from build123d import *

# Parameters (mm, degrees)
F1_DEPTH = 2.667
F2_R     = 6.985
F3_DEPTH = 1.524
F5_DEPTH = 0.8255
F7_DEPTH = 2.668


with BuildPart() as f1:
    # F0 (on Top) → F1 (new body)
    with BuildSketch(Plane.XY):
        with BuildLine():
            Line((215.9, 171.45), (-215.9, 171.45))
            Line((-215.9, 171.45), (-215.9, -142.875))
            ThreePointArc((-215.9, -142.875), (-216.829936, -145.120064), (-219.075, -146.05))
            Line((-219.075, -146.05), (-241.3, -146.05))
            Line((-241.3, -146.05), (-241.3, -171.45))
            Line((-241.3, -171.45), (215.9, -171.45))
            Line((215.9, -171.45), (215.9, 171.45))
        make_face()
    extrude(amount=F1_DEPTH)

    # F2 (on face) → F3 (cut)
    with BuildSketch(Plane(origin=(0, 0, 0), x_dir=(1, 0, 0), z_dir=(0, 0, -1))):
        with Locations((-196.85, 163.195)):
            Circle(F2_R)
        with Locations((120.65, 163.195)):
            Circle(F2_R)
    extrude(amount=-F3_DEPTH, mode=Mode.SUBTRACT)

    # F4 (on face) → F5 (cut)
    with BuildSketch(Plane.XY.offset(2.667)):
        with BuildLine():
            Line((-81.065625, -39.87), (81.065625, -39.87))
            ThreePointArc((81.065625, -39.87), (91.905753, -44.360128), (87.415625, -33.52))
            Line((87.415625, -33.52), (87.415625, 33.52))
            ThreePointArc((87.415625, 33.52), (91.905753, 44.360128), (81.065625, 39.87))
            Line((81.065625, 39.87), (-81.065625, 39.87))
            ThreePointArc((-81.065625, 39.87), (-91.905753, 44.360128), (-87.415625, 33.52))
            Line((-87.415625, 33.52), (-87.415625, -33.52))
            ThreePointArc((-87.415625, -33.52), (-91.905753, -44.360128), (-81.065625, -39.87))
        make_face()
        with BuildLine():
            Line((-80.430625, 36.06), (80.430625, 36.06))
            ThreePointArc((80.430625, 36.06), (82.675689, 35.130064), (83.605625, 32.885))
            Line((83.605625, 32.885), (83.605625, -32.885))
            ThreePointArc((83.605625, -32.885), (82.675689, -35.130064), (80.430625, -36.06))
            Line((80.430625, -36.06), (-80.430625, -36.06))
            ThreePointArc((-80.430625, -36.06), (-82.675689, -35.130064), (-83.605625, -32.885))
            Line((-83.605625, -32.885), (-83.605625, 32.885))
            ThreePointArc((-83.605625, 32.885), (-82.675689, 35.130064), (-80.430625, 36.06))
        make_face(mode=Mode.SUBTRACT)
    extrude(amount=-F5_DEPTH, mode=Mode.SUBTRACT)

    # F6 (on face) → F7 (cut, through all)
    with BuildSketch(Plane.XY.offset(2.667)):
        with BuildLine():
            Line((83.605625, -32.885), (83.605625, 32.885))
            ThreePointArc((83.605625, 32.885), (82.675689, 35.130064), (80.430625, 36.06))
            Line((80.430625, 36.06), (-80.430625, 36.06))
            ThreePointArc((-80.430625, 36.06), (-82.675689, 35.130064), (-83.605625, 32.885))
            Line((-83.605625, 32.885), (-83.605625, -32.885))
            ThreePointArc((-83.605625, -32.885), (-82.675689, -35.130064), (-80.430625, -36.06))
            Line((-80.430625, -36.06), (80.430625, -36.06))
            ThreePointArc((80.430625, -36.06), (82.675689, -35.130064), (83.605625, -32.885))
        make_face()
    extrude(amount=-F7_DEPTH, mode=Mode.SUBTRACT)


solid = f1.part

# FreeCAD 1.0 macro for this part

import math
import FreeCAD as App
import Part
import Sketcher

V = App.Vector
Q = App.Units.Quantity

doc = App.newDocument("Part")
params = doc.addObject("Spreadsheet::Sheet", "Params")
for row, (alias, value) in enumerate([
    ("sketch1_width", "17 in"),
    ("sketch1_width2", "18 in"),
    ("sketch1_height", "1 in"),
    ("sketch1_height2", "13.5 in"),
    ("sketch1_radius", "0.125 in"),
    ("pad1_length", "0.105 in"),
    ("sketch2_diameter", "0.55 in"),
    ("pocket1_length", "0.06 in"),
    ("sketch3_radius", "0.25 in"),
    ("sketch3_radius2", "0.125 in"),
    ("pocket2_length", "0.0325 in"),
    ("sketch4_radius", "0.125 in"),
], start=1):
    params.set(f"A{row}", alias)
    params.set(f"B{row}", "=" + value)
    params.setAlias(f"B{row}", alias)

body = doc.addObject("PartDesign::Body", "Body")

sketch1 = body.newObject("Sketcher::SketchObject", "Sketch")
sketch1.AttachmentSupport = (doc.getObject("XY_Plane"), [""])
sketch1.MapMode = "FlatFace"
sketch1.addGeometry(Part.LineSegment(V(215.9, 171.4, 0), V(-215.9, 171.4, 0)), False)
sketch1.addGeometry(Part.LineSegment(V(-215.9, 171.4, 0), V(-215.9, -142.9, 0)), False)
sketch1.addGeometry(Part.ArcOfCircle(Part.Circle(V(-219.1, -142.9, 0), V(0, 0, 1), 3.2), math.radians(-90), math.radians(0)), False)
sketch1.addGeometry(Part.LineSegment(V(-219.1, -146.1, 0), V(-241.3, -146.1, 0)), False)
sketch1.addGeometry(Part.LineSegment(V(-241.3, -146.1, 0), V(-241.3, -171.4, 0)), False)
sketch1.addGeometry(Part.LineSegment(V(-241.3, -171.4, 0), V(215.9, -171.4, 0)), False)
sketch1.addGeometry(Part.LineSegment(V(215.9, -171.4, 0), V(215.9, 171.4, 0)), False)
sketch1.addConstraint(Sketcher.Constraint("Coincident", 0, 2, 1, 1))
sketch1.addConstraint(Sketcher.Constraint("Tangent", 1, 2, 2, 2))
sketch1.addConstraint(Sketcher.Constraint("Tangent", 2, 1, 3, 1))
sketch1.addConstraint(Sketcher.Constraint("Coincident", 3, 2, 4, 1))
sketch1.addConstraint(Sketcher.Constraint("Coincident", 4, 2, 5, 1))
sketch1.addConstraint(Sketcher.Constraint("Coincident", 5, 2, 6, 1))
sketch1.addConstraint(Sketcher.Constraint("Coincident", 6, 2, 0, 1))
sketch1.addConstraint(Sketcher.Constraint("Horizontal", 0))
sketch1.addConstraint(Sketcher.Constraint("Vertical", 1))
sketch1.addConstraint(Sketcher.Constraint("Horizontal", 3))
sketch1.addConstraint(Sketcher.Constraint("Vertical", 4))
sketch1.addConstraint(Sketcher.Constraint("Horizontal", 5))
sketch1.addConstraint(Sketcher.Constraint("Vertical", 6))
sketch1.addConstraint(Sketcher.Constraint("Symmetric", 0, 2, 5, 2, -1, 1))
sketch1.addConstraint(Sketcher.Constraint("DistanceX", 0, 2, 0, 1, Q("17 in")))
sketch1.addConstraint(Sketcher.Constraint("DistanceX", 5, 1, 5, 2, Q("18 in")))
sketch1.addConstraint(Sketcher.Constraint("DistanceY", 4, 2, 4, 1, Q("1 in")))
sketch1.addConstraint(Sketcher.Constraint("DistanceY", 6, 1, 6, 2, Q("13.5 in")))
sketch1.addConstraint(Sketcher.Constraint("Radius", 2, Q("0.125 in")))
sketch1.setExpression("Constraints[14]", "Params.sketch1_width")
sketch1.setExpression("Constraints[15]", "Params.sketch1_width2")
sketch1.setExpression("Constraints[16]", "Params.sketch1_height")
sketch1.setExpression("Constraints[17]", "Params.sketch1_height2")
sketch1.setExpression("Constraints[18]", "Params.sketch1_radius")
pad1 = body.newObject("PartDesign::Pad", "Pad")
pad1.Profile = sketch1
pad1.setExpression("Length", "Params.pad1_length")

sketch2 = body.newObject("Sketcher::SketchObject", "Sketch001")
sketch2.AttachmentSupport = (doc.getObject("XY_Plane"), [""])
sketch2.MapMode = "FlatFace"
sketch2.addGeometry(Part.Circle(V(-197, -163, 0), V(0, 0, 1), 7), False)
sketch2.addGeometry(Part.Circle(V(121, -163, 0), V(0, 0, 1), 7), False)
sketch2.addConstraint(Sketcher.Constraint("Equal", 0, 1))
sketch2.addConstraint(Sketcher.Constraint("Horizontal", 0, 3, 1, 3))
sketch2.addConstraint(Sketcher.Constraint("Diameter", 0, Q("0.55 in")))
sketch2.addConstraint(Sketcher.Constraint("DistanceX", 0, 3, 1, 3, Q("12.5 in")))
sketch2.addConstraint(Sketcher.Constraint("DistanceX", 0, 3, -1, 1, Q("7.75 in")))
sketch2.addConstraint(Sketcher.Constraint("DistanceY", 0, 3, -1, 1, Q("6.425 in")))
sketch2.setExpression("Constraints[2]", "Params.sketch2_diameter")
pocket1 = body.newObject("PartDesign::Pocket", "Pocket")
pocket1.Profile = sketch2
pocket1.setExpression("Length", "Params.pocket1_length")
pocket1.Reversed = True

sketch3 = body.newObject("Sketcher::SketchObject", "Sketch002")
sketch3.AttachmentSupport = (doc.getObject("XY_Plane"), [""])
sketch3.MapMode = "FlatFace"
sketch3.AttachmentOffset = App.Placement(V(0, 0, 0.105 * 25.4), App.Rotation())
sketch3.addGeometry(Part.LineSegment(V(-81.1, -39.9, 0), V(81.1, -39.9, 0)), False)
sketch3.addGeometry(Part.ArcOfCircle(Part.Circle(V(87.4, -39.9, 0), V(0, 0, 1), 6.3), math.radians(-180), math.radians(90)), False)
sketch3.addGeometry(Part.LineSegment(V(87.4, -33.5, 0), V(87.4, 33.5, 0)), False)
sketch3.addGeometry(Part.ArcOfCircle(Part.Circle(V(87.4, 39.9, 0), V(0, 0, 1), 6.3), math.radians(-90), math.radians(180)), False)
sketch3.addGeometry(Part.LineSegment(V(81.1, 39.9, 0), V(-81.1, 39.9, 0)), False)
sketch3.addGeometry(Part.ArcOfCircle(Part.Circle(V(-87.4, 39.9, 0), V(0, 0, 1), 6.3), math.radians(0), math.radians(270)), False)
sketch3.addGeometry(Part.LineSegment(V(-87.4, 33.5, 0), V(-87.4, -33.5, 0)), False)
sketch3.addGeometry(Part.ArcOfCircle(Part.Circle(V(-87.4, -39.9, 0), V(0, 0, 1), 6.3), math.radians(90), math.radians(360)), False)
sketch3.addGeometry(Part.ArcOfCircle(Part.Circle(V(-80.4, 32.9, 0), V(0, 0, 1), 3.2), math.radians(90), math.radians(180)), False)
sketch3.addGeometry(Part.LineSegment(V(-80.4, 36.1, 0), V(80.4, 36.1, 0)), False)
sketch3.addGeometry(Part.ArcOfCircle(Part.Circle(V(80.4, 32.9, 0), V(0, 0, 1), 3.2), math.radians(0), math.radians(90)), False)
sketch3.addGeometry(Part.LineSegment(V(83.6, 32.9, 0), V(83.6, -32.9, 0)), False)
sketch3.addGeometry(Part.ArcOfCircle(Part.Circle(V(80.4, -32.9, 0), V(0, 0, 1), 3.2), math.radians(-90), math.radians(0)), False)
sketch3.addGeometry(Part.LineSegment(V(80.4, -36.1, 0), V(-80.4, -36.1, 0)), False)
sketch3.addGeometry(Part.ArcOfCircle(Part.Circle(V(-80.4, -32.9, 0), V(0, 0, 1), 3.2), math.radians(-180), math.radians(-90)), False)
sketch3.addGeometry(Part.LineSegment(V(-83.6, -32.9, 0), V(-83.6, 32.9, 0)), False)
sketch3.addConstraint(Sketcher.Constraint("Coincident", 0, 2, 1, 1))
sketch3.addConstraint(Sketcher.Constraint("Coincident", 1, 2, 2, 1))
sketch3.addConstraint(Sketcher.Constraint("Coincident", 2, 2, 3, 1))
sketch3.addConstraint(Sketcher.Constraint("Coincident", 3, 2, 4, 1))
sketch3.addConstraint(Sketcher.Constraint("Coincident", 4, 2, 5, 1))
sketch3.addConstraint(Sketcher.Constraint("Coincident", 5, 2, 6, 1))
sketch3.addConstraint(Sketcher.Constraint("Coincident", 6, 2, 7, 1))
sketch3.addConstraint(Sketcher.Constraint("Coincident", 7, 2, 0, 1))
sketch3.addConstraint(Sketcher.Constraint("Tangent", 8, 1, 9, 1))
sketch3.addConstraint(Sketcher.Constraint("Tangent", 9, 2, 10, 2))
sketch3.addConstraint(Sketcher.Constraint("Tangent", 10, 1, 11, 1))
sketch3.addConstraint(Sketcher.Constraint("Tangent", 11, 2, 12, 2))
sketch3.addConstraint(Sketcher.Constraint("Tangent", 12, 1, 13, 1))
sketch3.addConstraint(Sketcher.Constraint("Tangent", 13, 2, 14, 2))
sketch3.addConstraint(Sketcher.Constraint("Tangent", 14, 1, 15, 1))
sketch3.addConstraint(Sketcher.Constraint("Tangent", 15, 2, 8, 2))
sketch3.addConstraint(Sketcher.Constraint("Horizontal", 0))
sketch3.addConstraint(Sketcher.Constraint("Vertical", 2))
sketch3.addConstraint(Sketcher.Constraint("Horizontal", 4))
sketch3.addConstraint(Sketcher.Constraint("Vertical", 6))
sketch3.addConstraint(Sketcher.Constraint("Horizontal", 9))
sketch3.addConstraint(Sketcher.Constraint("Vertical", 11))
sketch3.addConstraint(Sketcher.Constraint("Horizontal", 13))
sketch3.addConstraint(Sketcher.Constraint("Vertical", 15))
sketch3.addConstraint(Sketcher.Constraint("Equal", 1, 3))
sketch3.addConstraint(Sketcher.Constraint("Equal", 3, 5))
sketch3.addConstraint(Sketcher.Constraint("Equal", 5, 7))
sketch3.addConstraint(Sketcher.Constraint("Equal", 8, 10))
sketch3.addConstraint(Sketcher.Constraint("Equal", 10, 12))
sketch3.addConstraint(Sketcher.Constraint("Equal", 12, 14))
sketch3.addConstraint(Sketcher.Constraint("Symmetric", 1, 3, 5, 3, -1, 1))
sketch3.addConstraint(Sketcher.Constraint("Symmetric", 3, 3, 7, 3, -1, 1))
sketch3.addConstraint(Sketcher.Constraint("Symmetric", 8, 3, 12, 3, -1, 1))
sketch3.addConstraint(Sketcher.Constraint("Symmetric", 3, 3, 5, 3, -2))
sketch3.addConstraint(Sketcher.Constraint("Horizontal", 7, 3, 0, 2))
sketch3.addConstraint(Sketcher.Constraint("Horizontal", 5, 3, 3, 2))
sketch3.addConstraint(Sketcher.Constraint("Vertical", 3, 3, 1, 2))
sketch3.addConstraint(Sketcher.Constraint("Vertical", 7, 3, 5, 2))
sketch3.addConstraint(Sketcher.Constraint("Radius", 1, Q("0.25 in")))
sketch3.addConstraint(Sketcher.Constraint("Radius", 8, Q("0.125 in")))
sketch3.addConstraint(Sketcher.Constraint("DistanceY", 5, 2, 8, 1, Q("0.1 in")))
sketch3.addConstraint(Sketcher.Constraint("DistanceX", 3, 2, 10, 1, Q("0.1 in")))
sketch3.addConstraint(Sketcher.Constraint("DistanceY", 2, 1, 2, 2, Q("67.04 mm")))
sketch3.addConstraint(Sketcher.Constraint("DistanceX", 0, 1, 0, 2, Q("162.13125 mm")))
sketch3.setExpression("Constraints[38]", "Params.sketch3_radius")
sketch3.setExpression("Constraints[39]", "Params.sketch3_radius2")
pocket2 = body.newObject("PartDesign::Pocket", "Pocket001")
pocket2.Profile = sketch3
pocket2.setExpression("Length", "Params.pocket2_length")

sketch4 = body.newObject("Sketcher::SketchObject", "Sketch003")
sketch4.AttachmentSupport = (doc.getObject("XY_Plane"), [""])
sketch4.MapMode = "FlatFace"
sketch4.AttachmentOffset = App.Placement(V(0, 0, 0.105 * 25.4), App.Rotation())
sketch4.addGeometry(Part.LineSegment(V(83.6, -32.9, 0), V(83.6, 32.9, 0)), False)
sketch4.addGeometry(Part.ArcOfCircle(Part.Circle(V(80.4, 32.9, 0), V(0, 0, 1), 3.2), math.radians(0), math.radians(90)), False)
sketch4.addGeometry(Part.LineSegment(V(80.4, 36.1, 0), V(-80.4, 36.1, 0)), False)
sketch4.addGeometry(Part.ArcOfCircle(Part.Circle(V(-80.4, 32.9, 0), V(0, 0, 1), 3.2), math.radians(90), math.radians(180)), False)
sketch4.addGeometry(Part.LineSegment(V(-83.6, 32.9, 0), V(-83.6, -32.9, 0)), False)
sketch4.addGeometry(Part.ArcOfCircle(Part.Circle(V(-80.4, -32.9, 0), V(0, 0, 1), 3.2), math.radians(-180), math.radians(-90)), False)
sketch4.addGeometry(Part.LineSegment(V(-80.4, -36.1, 0), V(80.4, -36.1, 0)), False)
sketch4.addGeometry(Part.ArcOfCircle(Part.Circle(V(80.4, -32.9, 0), V(0, 0, 1), 3.2), math.radians(-90), math.radians(0)), False)
sketch4.addConstraint(Sketcher.Constraint("Tangent", 0, 2, 1, 1))
sketch4.addConstraint(Sketcher.Constraint("Tangent", 1, 2, 2, 1))
sketch4.addConstraint(Sketcher.Constraint("Tangent", 2, 2, 3, 1))
sketch4.addConstraint(Sketcher.Constraint("Tangent", 3, 2, 4, 1))
sketch4.addConstraint(Sketcher.Constraint("Tangent", 4, 2, 5, 1))
sketch4.addConstraint(Sketcher.Constraint("Tangent", 5, 2, 6, 1))
sketch4.addConstraint(Sketcher.Constraint("Tangent", 6, 2, 7, 1))
sketch4.addConstraint(Sketcher.Constraint("Tangent", 7, 2, 0, 1))
sketch4.addConstraint(Sketcher.Constraint("Vertical", 0))
sketch4.addConstraint(Sketcher.Constraint("Horizontal", 2))
sketch4.addConstraint(Sketcher.Constraint("Vertical", 4))
sketch4.addConstraint(Sketcher.Constraint("Horizontal", 6))
sketch4.addConstraint(Sketcher.Constraint("Equal", 1, 3))
sketch4.addConstraint(Sketcher.Constraint("Equal", 3, 5))
sketch4.addConstraint(Sketcher.Constraint("Equal", 5, 7))
sketch4.addConstraint(Sketcher.Constraint("Symmetric", 1, 3, 5, 3, -1, 1))
sketch4.addConstraint(Sketcher.Constraint("Radius", 1, Q("0.125 in")))
sketch4.addConstraint(Sketcher.Constraint("DistanceY", 0, 1, 0, 2, Q("65.77 mm")))
sketch4.addConstraint(Sketcher.Constraint("DistanceX", 2, 2, 2, 1, Q("160.86125 mm")))
sketch4.setExpression("Constraints[16]", "Params.sketch4_radius")
pocket3 = body.newObject("PartDesign::Pocket", "Pocket002")
pocket3.Profile = sketch4
pocket3.Type = "ThroughAll"

doc.recompute()
